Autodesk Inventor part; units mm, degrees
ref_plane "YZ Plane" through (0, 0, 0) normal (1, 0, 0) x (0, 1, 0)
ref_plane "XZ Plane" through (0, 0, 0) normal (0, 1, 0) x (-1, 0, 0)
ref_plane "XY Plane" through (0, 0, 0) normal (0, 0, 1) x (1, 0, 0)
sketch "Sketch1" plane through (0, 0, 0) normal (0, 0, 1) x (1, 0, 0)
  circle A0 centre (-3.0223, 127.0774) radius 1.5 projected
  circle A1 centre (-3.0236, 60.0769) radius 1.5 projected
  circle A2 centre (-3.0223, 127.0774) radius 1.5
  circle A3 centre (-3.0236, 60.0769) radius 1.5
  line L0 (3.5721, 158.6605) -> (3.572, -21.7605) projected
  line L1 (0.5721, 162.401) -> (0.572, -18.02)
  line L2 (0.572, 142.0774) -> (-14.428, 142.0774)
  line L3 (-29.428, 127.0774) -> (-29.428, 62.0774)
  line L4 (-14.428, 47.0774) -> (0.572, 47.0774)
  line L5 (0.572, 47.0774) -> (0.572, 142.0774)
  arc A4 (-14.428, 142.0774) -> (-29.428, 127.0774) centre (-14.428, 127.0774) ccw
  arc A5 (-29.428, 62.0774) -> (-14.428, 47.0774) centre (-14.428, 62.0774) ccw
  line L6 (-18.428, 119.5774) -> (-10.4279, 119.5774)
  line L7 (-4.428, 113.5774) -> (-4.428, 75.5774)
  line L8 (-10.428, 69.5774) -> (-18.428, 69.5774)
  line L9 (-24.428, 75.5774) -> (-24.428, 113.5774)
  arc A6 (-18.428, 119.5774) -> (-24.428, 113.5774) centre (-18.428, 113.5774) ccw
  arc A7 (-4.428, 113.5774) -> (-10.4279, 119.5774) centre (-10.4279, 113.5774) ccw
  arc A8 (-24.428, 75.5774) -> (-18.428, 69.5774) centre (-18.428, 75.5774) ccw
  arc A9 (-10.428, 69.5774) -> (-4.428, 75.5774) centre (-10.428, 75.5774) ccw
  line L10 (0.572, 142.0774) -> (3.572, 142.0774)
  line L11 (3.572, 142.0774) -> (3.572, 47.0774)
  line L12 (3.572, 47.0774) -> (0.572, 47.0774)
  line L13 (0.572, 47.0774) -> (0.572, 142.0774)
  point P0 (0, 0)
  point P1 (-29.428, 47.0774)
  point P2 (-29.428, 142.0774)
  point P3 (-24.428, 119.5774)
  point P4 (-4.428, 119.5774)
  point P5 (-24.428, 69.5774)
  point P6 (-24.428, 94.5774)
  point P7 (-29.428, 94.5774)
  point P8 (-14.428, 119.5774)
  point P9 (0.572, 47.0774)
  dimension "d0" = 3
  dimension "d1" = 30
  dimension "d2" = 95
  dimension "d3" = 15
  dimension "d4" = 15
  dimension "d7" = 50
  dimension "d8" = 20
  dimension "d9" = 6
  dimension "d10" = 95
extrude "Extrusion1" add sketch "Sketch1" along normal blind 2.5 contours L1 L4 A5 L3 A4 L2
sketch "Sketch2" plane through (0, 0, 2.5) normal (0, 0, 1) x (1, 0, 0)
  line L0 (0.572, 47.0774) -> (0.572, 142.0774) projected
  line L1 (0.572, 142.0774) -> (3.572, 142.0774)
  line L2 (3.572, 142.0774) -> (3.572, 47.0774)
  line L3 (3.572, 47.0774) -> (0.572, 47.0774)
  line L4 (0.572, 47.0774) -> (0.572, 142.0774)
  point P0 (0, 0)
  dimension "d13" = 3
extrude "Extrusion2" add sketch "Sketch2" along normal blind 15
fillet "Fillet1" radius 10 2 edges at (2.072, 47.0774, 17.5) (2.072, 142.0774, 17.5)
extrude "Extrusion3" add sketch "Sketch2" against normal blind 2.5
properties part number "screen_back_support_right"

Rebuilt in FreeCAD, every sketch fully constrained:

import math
import FreeCAD as App
import Part
import Sketcher

V = App.Vector


def edges_at(feature, points):
    """Names of the edges that pass closest to the given points."""
    edges = feature.Shape.Edges
    near = lambda p: min(range(len(edges)), key=lambda i: edges[i].distToShape(Part.Vertex(*p))[0])
    return sorted({f"Edge{near(p) + 1}" for p in points})

doc = App.newDocument("Part")
body = doc.addObject("PartDesign::Body", "Body")
body.AllowCompound = True

sketch1 = body.newObject("Sketcher::SketchObject", "Sketch")
sketch1.AttachmentSupport = (doc.getObject("XY_Plane"), [""])
sketch1.MapMode = "FlatFace"
sketch1.addGeometry([
    Part.LineSegment(V(0.572036, 47.0774, 0), V(0.572089, 142.0774, 0)),
    Part.LineSegment(V(0.572, 142.0774, 0), V(-14.428, 142.0774, 0)),
    Part.ArcOfCircle(Part.Circle(V(-14.428, 127.0774, 0), V(0, 0, 1), 15), math.radians(90), math.radians(180)),
    Part.LineSegment(V(-29.428, 127.0774, 0), V(-29.428, 62.0774, 0)),
    Part.ArcOfCircle(Part.Circle(V(-14.428, 62.0774, 0), V(0, 0, 1), 15), math.radians(180), math.radians(270)),
    Part.LineSegment(V(-14.428, 47.0774, 0), V(0.572, 47.0774, 0)),
    Part.Circle(V(-3.0236, 60.0769, 0), V(0, 0, 1), 1.5),
    Part.ArcOfCircle(Part.Circle(V(-18.428, 113.5774, 0), V(0, 0, 1), 6), math.radians(90), math.radians(180)),
    Part.LineSegment(V(-18.428, 119.5774, 0), V(-10.4279, 119.5774, 0)),
    Part.ArcOfCircle(Part.Circle(V(-10.4279, 113.5774, 0), V(0, 0, 1), 5.9999), math.radians(0), math.radians(90)),
    Part.LineSegment(V(-4.428, 113.5774, 0), V(-4.428, 75.5774, 0)),
    Part.ArcOfCircle(Part.Circle(V(-10.428, 75.5774, 0), V(0, 0, 1), 6), math.radians(-90), math.radians(0)),
    Part.LineSegment(V(-10.428, 69.5774, 0), V(-18.428, 69.5774, 0)),
    Part.ArcOfCircle(Part.Circle(V(-18.428, 75.5774, 0), V(0, 0, 1), 6), math.radians(180), math.radians(270)),
    Part.LineSegment(V(-24.428, 75.5774, 0), V(-24.428, 113.5774, 0)),
    Part.Circle(V(-3.0223, 127.0774, 0), V(0, 0, 1), 1.5),
], False)
sketch1.addConstraint([
    Sketcher.Constraint("Coincident", 0, 2, 1, 1),
    Sketcher.Constraint("Tangent", 1, 2, 2, 1),
    Sketcher.Constraint("Tangent", 2, 2, 3, 1),
    Sketcher.Constraint("Tangent", 3, 2, 4, 1),
    Sketcher.Constraint("Tangent", 4, 2, 5, 1),
    Sketcher.Constraint("Coincident", 5, 2, 0, 1),
    Sketcher.Constraint("Tangent", 7, 1, 8, 1),
    Sketcher.Constraint("Tangent", 8, 2, 9, 2),
    Sketcher.Constraint("Tangent", 9, 1, 10, 1),
    Sketcher.Constraint("Tangent", 10, 2, 11, 2),
    Sketcher.Constraint("Tangent", 11, 1, 12, 1),
    Sketcher.Constraint("Tangent", 12, 2, 13, 2),
    Sketcher.Constraint("Tangent", 13, 1, 14, 1),
    Sketcher.Constraint("Tangent", 14, 2, 7, 2),
    Sketcher.Constraint("Vertical", 0),
    Sketcher.Constraint("Horizontal", 1),
    Sketcher.Constraint("Vertical", 3),
    Sketcher.Constraint("Horizontal", 5),
    Sketcher.Constraint("Horizontal", 8),
    Sketcher.Constraint("Vertical", 10),
    Sketcher.Constraint("Horizontal", 12),
    Sketcher.Constraint("Vertical", 14),
    Sketcher.Constraint("Equal", 2, 4),
    Sketcher.Constraint("Equal", 7, 9),
    Sketcher.Constraint("Equal", 9, 11),
    Sketcher.Constraint("Equal", 11, 13),
    Sketcher.Constraint("Equal", 6, 15),
    Sketcher.Constraint("Horizontal", 2, 3, 15, 3),
    Sketcher.Constraint("Diameter", 6, 3.0),
    Sketcher.Constraint("Radius", 2, 15.0),
    Sketcher.Constraint("Radius", 7, 6.0),
    Sketcher.Constraint("DistanceX", 1, 2, 1, 1, 15.0),
    Sketcher.Constraint("DistanceY", 0, 1, 0, 2, 95.0),
    Sketcher.Constraint("DistanceX", 8, 1, 8, 2, 8.0),
    Sketcher.Constraint("DistanceY", 10, 2, 10, 1, 38.0),
    Sketcher.Constraint("DistanceX", 7, 3, 2, 3, 4.0),
    Sketcher.Constraint("DistanceY", 7, 3, 2, 3, 13.5),
    Sketcher.Constraint("DistanceX", 2, 3, -1, 1, 14.428),
    Sketcher.Constraint("DistanceY", -1, 1, 6, 3, 60.077),
    Sketcher.Constraint("DistanceY", -1, 1, 2, 3, 127.0774),
    Sketcher.Constraint("DistanceX", 6, 3, -1, 1, 3.0236),
    Sketcher.Constraint("DistanceX", 15, 3, -1, 1, 3.0223),
])
pad1 = body.newObject("PartDesign::Pad", "Pad")
pad1.Profile = sketch1
pad1.Length = 2.5

sketch2 = body.newObject("Sketcher::SketchObject", "Sketch001")
sketch2.AttachmentSupport = (doc.getObject("XY_Plane"), [""])
sketch2.MapMode = "FlatFace"
sketch2.AttachmentOffset = App.Placement(V(0, 0, 2.5), App.Rotation())
sketch2.addGeometry([
    Part.LineSegment(V(0.572, 142.0774, 0), V(0.572, 47.0774, 0)),
    Part.LineSegment(V(0.572, 47.0774, 0), V(3.572, 47.0774, 0)),
    Part.LineSegment(V(3.572, 47.0774, 0), V(3.572, 142.0774, 0)),
    Part.LineSegment(V(3.572, 142.0774, 0), V(0.572, 142.0774, 0)),
], False)
sketch2.addConstraint([
    Sketcher.Constraint("Coincident", 0, 2, 1, 1),
    Sketcher.Constraint("Coincident", 1, 2, 2, 1),
    Sketcher.Constraint("Coincident", 2, 2, 3, 1),
    Sketcher.Constraint("Coincident", 3, 2, 0, 1),
    Sketcher.Constraint("Vertical", 0),
    Sketcher.Constraint("Horizontal", 1),
    Sketcher.Constraint("Vertical", 2),
    Sketcher.Constraint("Horizontal", 3),
    Sketcher.Constraint("DistanceX", 1, 1, 1, 2, 3.0),
    Sketcher.Constraint("DistanceY", 0, 2, 0, 1, 95.0),
    Sketcher.Constraint("DistanceX", -1, 1, 0, 2, 0.572),
    Sketcher.Constraint("DistanceY", -1, 1, 0, 2, 47.0774),
])
pad2 = body.newObject("PartDesign::Pad", "Pad001")
pad2.Profile = sketch2
pad2.Length = 15
doc.recompute()

fillet = body.newObject("PartDesign::Fillet", "Fillet")
fillet.Base = (pad2, edges_at(pad2, [(2.072, 47.077, 17.5), (2.072, 142.077, 17.5)]))
fillet.Radius = 10

sketch3 = body.newObject("Sketcher::SketchObject", "Sketch002")
sketch3.AttachmentSupport = (doc.getObject("XY_Plane"), [""])
sketch3.MapMode = "FlatFace"
sketch3.AttachmentOffset = App.Placement(V(0, 0, 2.5), App.Rotation())
sketch3.addGeometry([
    Part.LineSegment(V(0.572, 142.0774, 0), V(0.572, 47.0774, 0)),
    Part.LineSegment(V(0.572, 47.0774, 0), V(3.572, 47.0774, 0)),
    Part.LineSegment(V(3.572, 47.0774, 0), V(3.572, 142.0774, 0)),
    Part.LineSegment(V(3.572, 142.0774, 0), V(0.572, 142.0774, 0)),
], False)
sketch3.addConstraint([
    Sketcher.Constraint("Coincident", 0, 2, 1, 1),
    Sketcher.Constraint("Coincident", 1, 2, 2, 1),
    Sketcher.Constraint("Coincident", 2, 2, 3, 1),
    Sketcher.Constraint("Coincident", 3, 2, 0, 1),
    Sketcher.Constraint("Vertical", 0),
    Sketcher.Constraint("Horizontal", 1),
    Sketcher.Constraint("Vertical", 2),
    Sketcher.Constraint("Horizontal", 3),
    Sketcher.Constraint("DistanceX", 1, 1, 1, 2, 3.0),
    Sketcher.Constraint("DistanceY", 0, 2, 0, 1, 95.0),
    Sketcher.Constraint("DistanceX", -1, 1, 0, 2, 0.572),
    Sketcher.Constraint("DistanceY", -1, 1, 0, 2, 47.0774),
])
pad3 = body.newObject("PartDesign::Pad", "Pad002")
pad3.Profile = sketch3
pad3.Length = 2.5
pad3.Reversed = True

doc.recompute()
